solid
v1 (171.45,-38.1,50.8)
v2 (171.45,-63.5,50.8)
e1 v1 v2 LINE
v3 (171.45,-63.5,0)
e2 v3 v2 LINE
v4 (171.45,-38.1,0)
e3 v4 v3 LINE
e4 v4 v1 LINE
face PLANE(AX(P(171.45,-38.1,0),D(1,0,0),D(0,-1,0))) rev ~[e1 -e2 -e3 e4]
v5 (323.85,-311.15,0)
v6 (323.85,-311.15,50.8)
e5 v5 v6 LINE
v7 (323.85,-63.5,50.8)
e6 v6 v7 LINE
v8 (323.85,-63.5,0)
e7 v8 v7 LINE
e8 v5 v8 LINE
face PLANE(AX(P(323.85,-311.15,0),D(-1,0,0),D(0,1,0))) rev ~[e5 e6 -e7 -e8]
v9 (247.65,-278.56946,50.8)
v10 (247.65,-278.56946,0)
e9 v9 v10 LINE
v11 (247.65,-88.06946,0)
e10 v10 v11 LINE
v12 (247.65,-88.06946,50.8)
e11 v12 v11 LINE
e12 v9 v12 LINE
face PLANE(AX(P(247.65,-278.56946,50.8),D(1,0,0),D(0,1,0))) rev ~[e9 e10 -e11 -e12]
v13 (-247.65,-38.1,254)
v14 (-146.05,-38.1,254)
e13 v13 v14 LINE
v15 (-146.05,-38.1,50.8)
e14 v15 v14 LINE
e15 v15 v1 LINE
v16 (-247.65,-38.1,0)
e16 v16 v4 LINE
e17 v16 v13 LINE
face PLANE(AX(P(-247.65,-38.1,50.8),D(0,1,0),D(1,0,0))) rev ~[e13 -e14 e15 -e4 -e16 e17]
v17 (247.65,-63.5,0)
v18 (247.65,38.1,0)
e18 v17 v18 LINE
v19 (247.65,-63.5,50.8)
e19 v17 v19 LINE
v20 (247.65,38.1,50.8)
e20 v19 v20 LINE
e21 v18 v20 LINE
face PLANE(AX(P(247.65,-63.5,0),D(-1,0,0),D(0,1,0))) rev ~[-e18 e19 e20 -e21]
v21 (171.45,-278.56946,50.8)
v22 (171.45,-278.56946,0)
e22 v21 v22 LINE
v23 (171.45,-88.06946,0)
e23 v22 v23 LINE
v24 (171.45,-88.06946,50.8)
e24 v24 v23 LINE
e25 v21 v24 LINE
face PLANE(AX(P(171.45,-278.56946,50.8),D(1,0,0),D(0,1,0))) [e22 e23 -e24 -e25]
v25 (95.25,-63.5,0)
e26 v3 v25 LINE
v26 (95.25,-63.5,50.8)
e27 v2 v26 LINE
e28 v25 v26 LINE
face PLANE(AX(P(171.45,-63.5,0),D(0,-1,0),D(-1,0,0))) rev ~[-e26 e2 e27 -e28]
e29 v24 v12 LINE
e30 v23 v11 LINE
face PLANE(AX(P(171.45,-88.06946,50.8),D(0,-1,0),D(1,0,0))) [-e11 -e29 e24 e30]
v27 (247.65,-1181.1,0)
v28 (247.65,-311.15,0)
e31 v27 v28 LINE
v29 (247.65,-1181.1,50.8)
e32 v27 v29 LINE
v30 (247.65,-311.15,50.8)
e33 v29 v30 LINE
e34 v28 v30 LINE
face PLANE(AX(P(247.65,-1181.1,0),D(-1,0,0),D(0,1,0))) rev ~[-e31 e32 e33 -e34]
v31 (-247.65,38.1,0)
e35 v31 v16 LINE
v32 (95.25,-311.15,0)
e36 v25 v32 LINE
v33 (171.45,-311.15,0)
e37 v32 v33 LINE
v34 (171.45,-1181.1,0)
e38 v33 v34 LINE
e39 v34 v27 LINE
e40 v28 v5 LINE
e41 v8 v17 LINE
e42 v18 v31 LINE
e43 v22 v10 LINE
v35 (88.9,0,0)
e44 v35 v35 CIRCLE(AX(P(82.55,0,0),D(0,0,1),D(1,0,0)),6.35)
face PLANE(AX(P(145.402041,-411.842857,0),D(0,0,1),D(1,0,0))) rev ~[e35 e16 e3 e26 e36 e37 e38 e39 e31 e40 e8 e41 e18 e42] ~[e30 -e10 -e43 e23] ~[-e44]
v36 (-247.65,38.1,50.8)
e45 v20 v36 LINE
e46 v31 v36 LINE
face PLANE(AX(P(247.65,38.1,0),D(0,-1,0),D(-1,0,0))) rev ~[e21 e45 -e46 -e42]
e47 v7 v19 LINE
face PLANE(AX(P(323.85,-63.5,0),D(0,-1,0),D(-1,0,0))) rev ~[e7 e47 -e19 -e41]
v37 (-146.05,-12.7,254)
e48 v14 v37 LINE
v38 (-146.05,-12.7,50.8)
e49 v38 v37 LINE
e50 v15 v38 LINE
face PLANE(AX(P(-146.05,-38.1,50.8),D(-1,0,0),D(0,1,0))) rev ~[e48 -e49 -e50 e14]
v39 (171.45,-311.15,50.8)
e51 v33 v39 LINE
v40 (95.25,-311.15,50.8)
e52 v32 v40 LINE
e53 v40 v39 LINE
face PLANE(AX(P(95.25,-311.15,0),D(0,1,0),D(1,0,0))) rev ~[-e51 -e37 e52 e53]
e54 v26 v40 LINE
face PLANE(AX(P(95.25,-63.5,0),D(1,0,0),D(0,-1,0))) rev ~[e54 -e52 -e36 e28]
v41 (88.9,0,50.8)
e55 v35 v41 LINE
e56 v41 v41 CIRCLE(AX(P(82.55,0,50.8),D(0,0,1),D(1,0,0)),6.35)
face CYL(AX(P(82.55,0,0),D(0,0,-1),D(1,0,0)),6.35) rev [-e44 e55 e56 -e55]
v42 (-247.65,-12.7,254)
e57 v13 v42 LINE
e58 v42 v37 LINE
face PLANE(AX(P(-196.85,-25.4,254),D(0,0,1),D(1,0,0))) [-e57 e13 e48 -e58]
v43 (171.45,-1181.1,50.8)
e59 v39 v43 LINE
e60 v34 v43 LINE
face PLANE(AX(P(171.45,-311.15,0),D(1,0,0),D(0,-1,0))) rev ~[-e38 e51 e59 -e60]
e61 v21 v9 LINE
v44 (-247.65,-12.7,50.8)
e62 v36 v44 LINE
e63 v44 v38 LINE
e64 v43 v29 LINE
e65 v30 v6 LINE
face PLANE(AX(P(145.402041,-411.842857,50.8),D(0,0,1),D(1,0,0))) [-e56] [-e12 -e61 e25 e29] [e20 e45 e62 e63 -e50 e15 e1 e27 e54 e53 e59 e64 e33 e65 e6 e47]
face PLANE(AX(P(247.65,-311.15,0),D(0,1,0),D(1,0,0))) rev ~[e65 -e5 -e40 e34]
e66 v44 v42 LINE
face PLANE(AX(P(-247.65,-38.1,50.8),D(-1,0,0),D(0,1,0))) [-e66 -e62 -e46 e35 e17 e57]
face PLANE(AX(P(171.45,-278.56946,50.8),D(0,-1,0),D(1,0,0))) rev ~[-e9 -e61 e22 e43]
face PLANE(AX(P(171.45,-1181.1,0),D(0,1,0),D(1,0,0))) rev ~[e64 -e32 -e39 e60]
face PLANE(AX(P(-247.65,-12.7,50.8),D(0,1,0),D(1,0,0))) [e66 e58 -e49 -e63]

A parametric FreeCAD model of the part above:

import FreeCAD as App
import Part
import Sketcher
Q = App.Units.Quantity


def add_polygon(sketch, points):
    """Adds a closed chain of lines whose ends are joined by coincident constraints."""
    first, n = sketch.GeometryCount, len(points)
    for a, b in zip(points, points[1:] + points[:1]):
        sketch.addGeometry(Part.LineSegment(App.Vector(*a, 0), App.Vector(*b, 0)), False)
    for i in range(n):
        sketch.addConstraint(Sketcher.Constraint("Coincident", first + i, 2, first + (i + 1) % n, 1))

doc = App.newDocument("Part")
body = doc.addObject("PartDesign::Body", "Body")

sketch1 = body.newObject("Sketcher::SketchObject", "Sketch")
sketch1.AttachmentSupport = (doc.getObject("XY_Plane"), [""])
sketch1.MapMode = "FlatFace"
add_polygon(sketch1, [(247.65, 38.1), (-247.65, 38.1), (-247.65, -38.1), (171.45, -38.1), (171.45, -63.5), (95.25, -63.5), (95.25, -311.15), (171.45, -311.15), (171.45, -1181.1), (247.65, -1181.1), (247.65, -311.15), (323.85, -311.15), (323.85, -63.5), (247.65, -63.5)])
sketch1.addGeometry(Part.Circle(App.Vector(82.55, 0, 0), App.Vector(0, 0, 1), 6.35), False)
sketch1.addConstraint(Sketcher.Constraint("Horizontal", 0))
sketch1.addConstraint(Sketcher.Constraint("Vertical", 1))
sketch1.addConstraint(Sketcher.Constraint("Horizontal", 2))
sketch1.addConstraint(Sketcher.Constraint("Vertical", 3))
sketch1.addConstraint(Sketcher.Constraint("Horizontal", 4))
sketch1.addConstraint(Sketcher.Constraint("Vertical", 5))
sketch1.addConstraint(Sketcher.Constraint("Horizontal", 6))
sketch1.addConstraint(Sketcher.Constraint("Vertical", 7))
sketch1.addConstraint(Sketcher.Constraint("Horizontal", 8))
sketch1.addConstraint(Sketcher.Constraint("Vertical", 9))
sketch1.addConstraint(Sketcher.Constraint("Horizontal", 10))
sketch1.addConstraint(Sketcher.Constraint("Vertical", 11))
sketch1.addConstraint(Sketcher.Constraint("Horizontal", 12))
sketch1.addConstraint(Sketcher.Constraint("Vertical", 13))
sketch1.addConstraint(Sketcher.Constraint("Symmetric", 1, 2, 13, 2, -1, 1))
sketch1.addConstraint(Sketcher.Constraint("PointOnObject", 14, 3, -1))
sketch1.addConstraint(Sketcher.Constraint("Horizontal", 6, 2, 9, 2))
sketch1.addConstraint(Sketcher.Constraint("Horizontal", 4, 2, 11, 2))
sketch1.addConstraint(Sketcher.Constraint("Vertical", 3, 2, 6, 2))
sketch1.addConstraint(Sketcher.Constraint("Vertical", 9, 2, 12, 2))
sketch1.addConstraint(Sketcher.Constraint("Equal", 6, 8))
sketch1.addConstraint(Sketcher.Constraint("Equal", 8, 10))
sketch1.addConstraint(Sketcher.Constraint("Equal", 12, 1))
sketch1.addConstraint(Sketcher.Constraint("Diameter", 14, Q("0.5 in")))
sketch1.addConstraint(Sketcher.Constraint("DistanceX", 4, 2, 4, 1, Q("3 in")))
sketch1.addConstraint(Sketcher.Constraint("DistanceY", 3, 2, 3, 1, Q("1 in")))
sketch1.addConstraint(Sketcher.Constraint("DistanceX", 0, 2, 0, 1, Q("19.5 in")))
sketch1.addConstraint(Sketcher.Constraint("DistanceX", 0, 2, 14, 3, Q("13 in")))
sketch1.addConstraint(Sketcher.Constraint("DistanceY", 7, 2, 3, 2, Q("44 in")))
sketch1.addConstraint(Sketcher.Constraint("DistanceY", 5, 2, 5, 1, Q("9.75 in")))
pad1 = body.newObject("PartDesign::Pad", "Pad")
pad1.Profile = sketch1
pad1.Length = Q("2 in")

sketch2 = body.newObject("Sketcher::SketchObject", "Sketch001")
sketch2.AttachmentSupport = (doc.getObject("XY_Plane"), [""])
sketch2.MapMode = "FlatFace"
sketch2.AttachmentOffset = App.Placement(App.Vector(0, 0, 2 * 25.4), App.Rotation())
add_polygon(sketch2, [(-247.65, -12.7), (-247.65, -38.1), (-146.05, -38.1), (-146.05, -12.7)])
sketch2.addConstraint(Sketcher.Constraint("Vertical", 0))
sketch2.addConstraint(Sketcher.Constraint("Horizontal", 1))
sketch2.addConstraint(Sketcher.Constraint("Vertical", 2))
sketch2.addConstraint(Sketcher.Constraint("Horizontal", 3))
sketch2.addConstraint(Sketcher.Constraint("DistanceX", 1, 1, 1, 2, Q("4 in")))
sketch2.addConstraint(Sketcher.Constraint("DistanceY", 0, 2, 0, 1, Q("1 in")))
sketch2.addConstraint(Sketcher.Constraint("DistanceY", 0, 2, -1, 1, Q("1.5 in")))
sketch2.addConstraint(Sketcher.Constraint("DistanceX", 0, 2, -1, 1, Q("9.75 in")))
pad2 = body.newObject("PartDesign::Pad", "Pad001")
pad2.Profile = sketch2
pad2.Length = Q("8 in")

sketch3 = body.newObject("Sketcher::SketchObject", "Sketch002")
sketch3.AttachmentSupport = (doc.getObject("XY_Plane"), [""])
sketch3.MapMode = "FlatFace"
sketch3.AttachmentOffset = App.Placement(App.Vector(0, 0, 2 * 25.4), App.Rotation())
add_polygon(sketch3, [(171.45, -88.06946), (171.45, -278.56946), (247.65, -278.56946), (247.65, -88.06946)])
sketch3.addConstraint(Sketcher.Constraint("Vertical", 0))
sketch3.addConstraint(Sketcher.Constraint("Horizontal", 1))
sketch3.addConstraint(Sketcher.Constraint("Vertical", 2))
sketch3.addConstraint(Sketcher.Constraint("Horizontal", 3))
sketch3.addConstraint(Sketcher.Constraint("DistanceX", 1, 1, 1, 2, Q("3 in")))
sketch3.addConstraint(Sketcher.Constraint("DistanceY", 0, 2, 0, 1, Q("7.5 in")))
sketch3.addConstraint(Sketcher.Constraint("DistanceX", -1, 1, 0, 2, Q("6.75 in")))
sketch3.addConstraint(Sketcher.Constraint("DistanceY", 0, 2, -1, 1, Q("278.56946 mm")))
pocket1 = body.newObject("PartDesign::Pocket", "Pocket")
pocket1.Profile = sketch3
pocket1.Length = Q("2 in")

doc.recompute()
